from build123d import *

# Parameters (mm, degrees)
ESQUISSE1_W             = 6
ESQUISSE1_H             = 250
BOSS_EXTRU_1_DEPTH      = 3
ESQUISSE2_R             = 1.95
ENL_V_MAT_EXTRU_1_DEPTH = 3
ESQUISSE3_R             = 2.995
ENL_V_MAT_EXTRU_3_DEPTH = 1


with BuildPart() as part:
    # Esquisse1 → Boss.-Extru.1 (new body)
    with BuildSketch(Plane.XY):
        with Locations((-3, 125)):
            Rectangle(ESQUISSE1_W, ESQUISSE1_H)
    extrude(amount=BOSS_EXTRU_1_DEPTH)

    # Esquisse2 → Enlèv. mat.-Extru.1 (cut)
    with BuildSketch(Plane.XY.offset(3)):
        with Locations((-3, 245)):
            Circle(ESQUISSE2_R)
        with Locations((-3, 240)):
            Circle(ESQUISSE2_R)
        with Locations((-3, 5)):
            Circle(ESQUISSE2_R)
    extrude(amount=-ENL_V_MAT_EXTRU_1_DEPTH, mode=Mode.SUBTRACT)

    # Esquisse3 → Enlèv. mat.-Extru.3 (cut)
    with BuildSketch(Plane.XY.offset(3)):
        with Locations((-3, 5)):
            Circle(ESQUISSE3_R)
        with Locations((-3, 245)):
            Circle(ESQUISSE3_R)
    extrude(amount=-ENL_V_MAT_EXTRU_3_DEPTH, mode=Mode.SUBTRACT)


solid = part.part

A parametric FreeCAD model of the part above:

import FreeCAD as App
import Part
import Sketcher


def add_polygon(sketch, points):
    """Adds a closed chain of lines whose ends are joined by coincident constraints."""
    first, n = sketch.GeometryCount, len(points)
    for a, b in zip(points, points[1:] + points[:1]):
        sketch.addGeometry(Part.LineSegment(App.Vector(*a, 0), App.Vector(*b, 0)), False)
    for i in range(n):
        sketch.addConstraint(Sketcher.Constraint("Coincident", first + i, 2, first + (i + 1) % n, 1))

doc = App.newDocument("Part")
params = doc.addObject("Spreadsheet::Sheet", "Params")
for row, (alias, value) in enumerate([
    ("sketch1_width", "6 mm"),
    ("sketch1_height", "250 mm"),
    ("pad1_length", "3 mm"),
    ("sketch2_diameter", "3.9 mm"),
    ("pocket1_length", "3 mm"),
    ("sketch3_diameter", "5.99 mm"),
    ("pocket2_length", "1 mm"),
], start=1):
    params.set(f"A{row}", alias)
    params.set(f"B{row}", "=" + value)
    params.setAlias(f"B{row}", alias)

body = doc.addObject("PartDesign::Body", "Body")

sketch1 = body.newObject("Sketcher::SketchObject", "Sketch")
sketch1.AttachmentSupport = (doc.getObject("XY_Plane"), [""])
sketch1.MapMode = "FlatFace"
add_polygon(sketch1, [(-6, 250), (-6, 0), (0, 0), (0, 250)])
sketch1.addConstraint([
    Sketcher.Constraint("Vertical", 0),
    Sketcher.Constraint("Horizontal", 1),
    Sketcher.Constraint("Vertical", 2),
    Sketcher.Constraint("Horizontal", 3),
    Sketcher.Constraint("Coincident", 1, 2, -1, 1),
    Sketcher.Constraint("DistanceX", 1, 1, 1, 2, 6.0),
    Sketcher.Constraint("DistanceY", 0, 2, 0, 1, 250.0),
])
sketch1.setExpression("Constraints[9]", "Params.sketch1_width")
sketch1.setExpression("Constraints[10]", "Params.sketch1_height")
pad1 = body.newObject("PartDesign::Pad", "Pad")
pad1.Profile = sketch1
pad1.setExpression("Length", "Params.pad1_length")

sketch2 = body.newObject("Sketcher::SketchObject", "Sketch001")
sketch2.AttachmentSupport = (doc.getObject("XY_Plane"), [""])
sketch2.MapMode = "FlatFace"
sketch2.AttachmentOffset = App.Placement(App.Vector(0, 0, 3), App.Rotation())
sketch2.addGeometry([
    Part.Circle(App.Vector(-3, 245, 0), App.Vector(0, 0, 1), 1.95),
    Part.Circle(App.Vector(-3, 240, 0), App.Vector(0, 0, 1), 1.95),
    Part.Circle(App.Vector(-3, 5, 0), App.Vector(0, 0, 1), 1.95),
], False)
sketch2.addConstraint([
    Sketcher.Constraint("Equal", 0, 1),
    Sketcher.Constraint("Equal", 1, 2),
    Sketcher.Constraint("Vertical", 0, 3, 1, 3),
    Sketcher.Constraint("Vertical", 1, 3, 2, 3),
    Sketcher.Constraint("Diameter", 0, 3.9),
    Sketcher.Constraint("DistanceX", 0, 3, -1, 1, 3.0),
    Sketcher.Constraint("DistanceY", -1, 1, 0, 3, 245.0),
    Sketcher.Constraint("DistanceY", -1, 1, 1, 3, 240.0),
    Sketcher.Constraint("DistanceY", -1, 1, 2, 3, 5.0),
])
sketch2.setExpression("Constraints[4]", "Params.sketch2_diameter")
pocket1 = body.newObject("PartDesign::Pocket", "Pocket")
pocket1.Profile = sketch2
pocket1.setExpression("Length", "Params.pocket1_length")

sketch3 = body.newObject("Sketcher::SketchObject", "Sketch002")
sketch3.AttachmentSupport = (doc.getObject("XY_Plane"), [""])
sketch3.MapMode = "FlatFace"
sketch3.AttachmentOffset = App.Placement(App.Vector(0, 0, 3), App.Rotation())
sketch3.addGeometry([
    Part.Circle(App.Vector(-3, 5, 0), App.Vector(0, 0, 1), 2.995),
    Part.Circle(App.Vector(-3, 245, 0), App.Vector(0, 0, 1), 2.995),
], False)
sketch3.addConstraint([
    Sketcher.Constraint("Equal", 0, 1),
    Sketcher.Constraint("Vertical", 0, 3, 1, 3),
    Sketcher.Constraint("Diameter", 0, 5.99),
    Sketcher.Constraint("DistanceX", 0, 3, -1, 1, 3.0),
    Sketcher.Constraint("DistanceY", -1, 1, 0, 3, 5.0),
    Sketcher.Constraint("DistanceY", -1, 1, 1, 3, 245.0),
])
sketch3.setExpression("Constraints[2]", "Params.sketch3_diameter")
pocket2 = body.newObject("PartDesign::Pocket", "Pocket001")
pocket2.Profile = sketch3
pocket2.setExpression("Length", "Params.pocket2_length")

doc.recompute()
